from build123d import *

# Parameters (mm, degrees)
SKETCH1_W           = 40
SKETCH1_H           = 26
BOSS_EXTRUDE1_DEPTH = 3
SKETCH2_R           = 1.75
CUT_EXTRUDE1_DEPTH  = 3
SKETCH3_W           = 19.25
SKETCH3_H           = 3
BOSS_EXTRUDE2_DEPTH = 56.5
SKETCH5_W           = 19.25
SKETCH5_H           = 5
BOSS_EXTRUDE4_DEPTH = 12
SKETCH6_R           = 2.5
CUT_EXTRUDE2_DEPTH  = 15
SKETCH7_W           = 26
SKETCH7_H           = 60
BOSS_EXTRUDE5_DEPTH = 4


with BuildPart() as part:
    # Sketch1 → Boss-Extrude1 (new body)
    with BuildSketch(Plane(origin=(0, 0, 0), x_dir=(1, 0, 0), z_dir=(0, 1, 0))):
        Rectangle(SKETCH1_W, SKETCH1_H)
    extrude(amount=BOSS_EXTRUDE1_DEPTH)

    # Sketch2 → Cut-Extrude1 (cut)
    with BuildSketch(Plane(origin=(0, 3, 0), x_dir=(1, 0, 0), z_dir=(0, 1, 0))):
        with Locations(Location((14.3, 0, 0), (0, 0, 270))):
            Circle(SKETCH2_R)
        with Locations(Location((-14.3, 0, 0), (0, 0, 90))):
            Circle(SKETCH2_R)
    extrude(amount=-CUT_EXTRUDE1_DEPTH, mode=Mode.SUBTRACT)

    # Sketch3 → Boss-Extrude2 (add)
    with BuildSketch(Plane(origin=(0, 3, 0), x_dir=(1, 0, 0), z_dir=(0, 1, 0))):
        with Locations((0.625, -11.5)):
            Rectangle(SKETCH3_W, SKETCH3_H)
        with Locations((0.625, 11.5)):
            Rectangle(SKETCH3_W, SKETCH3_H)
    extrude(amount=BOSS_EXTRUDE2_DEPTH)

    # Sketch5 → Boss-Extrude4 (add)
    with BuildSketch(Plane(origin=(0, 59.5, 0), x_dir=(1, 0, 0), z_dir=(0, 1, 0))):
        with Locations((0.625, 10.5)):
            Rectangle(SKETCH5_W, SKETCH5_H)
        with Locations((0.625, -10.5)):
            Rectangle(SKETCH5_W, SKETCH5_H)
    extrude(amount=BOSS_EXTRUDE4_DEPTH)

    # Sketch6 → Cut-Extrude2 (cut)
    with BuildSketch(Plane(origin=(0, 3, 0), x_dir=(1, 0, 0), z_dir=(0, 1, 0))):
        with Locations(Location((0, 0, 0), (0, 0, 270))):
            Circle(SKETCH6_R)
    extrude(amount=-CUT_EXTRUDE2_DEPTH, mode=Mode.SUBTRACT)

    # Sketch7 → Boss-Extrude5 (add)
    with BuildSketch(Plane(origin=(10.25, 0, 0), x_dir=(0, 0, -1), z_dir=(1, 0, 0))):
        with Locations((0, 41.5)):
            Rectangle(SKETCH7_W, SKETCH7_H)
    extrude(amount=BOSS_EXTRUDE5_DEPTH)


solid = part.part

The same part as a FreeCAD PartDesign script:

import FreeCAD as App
import Part
import Sketcher

V = App.Vector
Q = App.Units.Quantity

doc = App.newDocument("Part")
body = doc.addObject("PartDesign::Body", "Body")

# Sketch on XZ plane
sketch1 = body.newObject("Sketcher::SketchObject", "Sketch")
sketch1.AttachmentSupport = (doc.getObject("XZ_Plane"), [""])
sketch1.MapMode = "FlatFace"
sketch1.addGeometry(Part.LineSegment(V(-20, -13, 0), V(-20, 13, 0)), False)
sketch1.addGeometry(Part.LineSegment(V(-20, 13, 0), V(20, 13, 0)), False)
sketch1.addGeometry(Part.LineSegment(V(20, 13, 0), V(20, -13, 0)), False)
sketch1.addGeometry(Part.LineSegment(V(20, -13, 0), V(-20, -13, 0)), False)
sketch1.addConstraint(Sketcher.Constraint("Coincident", 0, 2, 1, 1))
sketch1.addConstraint(Sketcher.Constraint("Coincident", 1, 2, 2, 1))
sketch1.addConstraint(Sketcher.Constraint("Coincident", 2, 2, 3, 1))
sketch1.addConstraint(Sketcher.Constraint("Coincident", 3, 2, 0, 1))
sketch1.addConstraint(Sketcher.Constraint("Vertical", 0))
sketch1.addConstraint(Sketcher.Constraint("Horizontal", 1))
sketch1.addConstraint(Sketcher.Constraint("Vertical", 2))
sketch1.addConstraint(Sketcher.Constraint("Horizontal", 3))
sketch1.addConstraint(Sketcher.Constraint("Symmetric", 0, 2, 2, 2, -1, 1))
sketch1.addConstraint(Sketcher.Constraint("DistanceX", 1, 1, 1, 2, Q("40 mm")))
sketch1.addConstraint(Sketcher.Constraint("DistanceY", 0, 1, 0, 2, Q("26 mm")))
pad1 = body.newObject("PartDesign::Pad", "Pad")
pad1.Profile = sketch1
pad1.Length = 3
pad1.Reversed = True

# Sketch on XZ plane
sketch2 = body.newObject("Sketcher::SketchObject", "Sketch001")
sketch2.AttachmentSupport = (doc.getObject("XZ_Plane"), [""])
sketch2.MapMode = "FlatFace"
sketch2.AttachmentOffset = App.Placement(V(0, 0, -3), App.Rotation())
sketch2.addGeometry(Part.Circle(V(14.3, 0, 0), V(0, 0, 1), 1.8), False)
sketch2.addGeometry(Part.Circle(V(-14.3, 0, 0), V(0, 0, 1), 1.8), False)
sketch2.addConstraint(Sketcher.Constraint("Equal", 0, 1))
sketch2.addConstraint(Sketcher.Constraint("Symmetric", 0, 3, 1, 3, -1, 1))
sketch2.addConstraint(Sketcher.Constraint("PointOnObject", 0, 3, -1))
sketch2.addConstraint(Sketcher.Constraint("Diameter", 0, Q("3.5 mm")))
sketch2.addConstraint(Sketcher.Constraint("DistanceX", -1, 1, 0, 3, Q("14.3 mm")))
pocket1 = body.newObject("PartDesign::Pocket", "Pocket")
pocket1.Profile = sketch2
pocket1.Length = 3
pocket1.Reversed = True

# Sketch on XZ plane
sketch3 = body.newObject("Sketcher::SketchObject", "Sketch002")
sketch3.AttachmentSupport = (doc.getObject("XZ_Plane"), [""])
sketch3.MapMode = "FlatFace"
sketch3.AttachmentOffset = App.Placement(V(0, 0, -3), App.Rotation())
sketch3.addGeometry(Part.LineSegment(V(-9, 10, 0), V(-9, 13, 0)), False)
sketch3.addGeometry(Part.LineSegment(V(-9, 13, 0), V(10.2, 13, 0)), False)
sketch3.addGeometry(Part.LineSegment(V(10.2, 13, 0), V(10.2, 10, 0)), False)
sketch3.addGeometry(Part.LineSegment(V(10.2, 10, 0), V(-9, 10, 0)), False)
sketch3.addGeometry(Part.LineSegment(V(-9, -13, 0), V(-9, -10, 0)), False)
sketch3.addGeometry(Part.LineSegment(V(-9, -10, 0), V(10.2, -10, 0)), False)
sketch3.addGeometry(Part.LineSegment(V(10.2, -10, 0), V(10.2, -13, 0)), False)
sketch3.addGeometry(Part.LineSegment(V(10.2, -13, 0), V(-9, -13, 0)), False)
sketch3.addConstraint(Sketcher.Constraint("Coincident", 0, 2, 1, 1))
sketch3.addConstraint(Sketcher.Constraint("Coincident", 1, 2, 2, 1))
sketch3.addConstraint(Sketcher.Constraint("Coincident", 2, 2, 3, 1))
sketch3.addConstraint(Sketcher.Constraint("Coincident", 3, 2, 0, 1))
sketch3.addConstraint(Sketcher.Constraint("Coincident", 4, 2, 5, 1))
sketch3.addConstraint(Sketcher.Constraint("Coincident", 5, 2, 6, 1))
sketch3.addConstraint(Sketcher.Constraint("Coincident", 6, 2, 7, 1))
sketch3.addConstraint(Sketcher.Constraint("Coincident", 7, 2, 4, 1))
sketch3.addConstraint(Sketcher.Constraint("Vertical", 0))
sketch3.addConstraint(Sketcher.Constraint("Horizontal", 1))
sketch3.addConstraint(Sketcher.Constraint("Vertical", 2))
sketch3.addConstraint(Sketcher.Constraint("Horizontal", 3))
sketch3.addConstraint(Sketcher.Constraint("Vertical", 4))
sketch3.addConstraint(Sketcher.Constraint("Horizontal", 5))
sketch3.addConstraint(Sketcher.Constraint("Vertical", 6))
sketch3.addConstraint(Sketcher.Constraint("Horizontal", 7))
sketch3.addConstraint(Sketcher.Constraint("Symmetric", 3, 2, 4, 2, -1))
sketch3.addConstraint(Sketcher.Constraint("Symmetric", 1, 2, 6, 2, -1))
sketch3.addConstraint(Sketcher.Constraint("DistanceY", 0, 1, 0, 2, Q("3 mm")))
sketch3.addConstraint(Sketcher.Constraint("DistanceX", 0, 2, -1, 1, Q("9 mm")))
sketch3.addConstraint(Sketcher.Constraint("DistanceY", -1, 1, 0, 2, Q("13 mm")))
sketch3.addConstraint(Sketcher.Constraint("DistanceX", 1, 1, 1, 2, Q("19.25 mm")))
pad2 = body.newObject("PartDesign::Pad", "Pad001")
pad2.Profile = sketch3
pad2.Length = 56.5
pad2.Reversed = True

# Sketch on XZ plane
sketch4 = body.newObject("Sketcher::SketchObject", "Sketch003")
sketch4.AttachmentSupport = (doc.getObject("XZ_Plane"), [""])
sketch4.MapMode = "FlatFace"
sketch4.AttachmentOffset = App.Placement(V(0, 0, -59.5), App.Rotation())
sketch4.addGeometry(Part.LineSegment(V(-9, -13, 0), V(-9, -8, 0)), False)
sketch4.addGeometry(Part.LineSegment(V(-9, -8, 0), V(10, -8, 0)), False)
sketch4.addGeometry(Part.LineSegment(V(10, -8, 0), V(10, -13, 0)), False)
sketch4.addGeometry(Part.LineSegment(V(10, -13, 0), V(-9, -13, 0)), False)
sketch4.addGeometry(Part.LineSegment(V(-9, 8, 0), V(-9, 13, 0)), False)
sketch4.addGeometry(Part.LineSegment(V(-9, 13, 0), V(10, 13, 0)), False)
sketch4.addGeometry(Part.LineSegment(V(10, 13, 0), V(10, 8, 0)), False)
sketch4.addGeometry(Part.LineSegment(V(10, 8, 0), V(-9, 8, 0)), False)
sketch4.addConstraint(Sketcher.Constraint("Coincident", 0, 2, 1, 1))
sketch4.addConstraint(Sketcher.Constraint("Coincident", 1, 2, 2, 1))
sketch4.addConstraint(Sketcher.Constraint("Coincident", 2, 2, 3, 1))
sketch4.addConstraint(Sketcher.Constraint("Coincident", 3, 2, 0, 1))
sketch4.addConstraint(Sketcher.Constraint("Coincident", 4, 2, 5, 1))
sketch4.addConstraint(Sketcher.Constraint("Coincident", 5, 2, 6, 1))
sketch4.addConstraint(Sketcher.Constraint("Coincident", 6, 2, 7, 1))
sketch4.addConstraint(Sketcher.Constraint("Coincident", 7, 2, 4, 1))
sketch4.addConstraint(Sketcher.Constraint("Vertical", 0))
sketch4.addConstraint(Sketcher.Constraint("Horizontal", 1))
sketch4.addConstraint(Sketcher.Constraint("Vertical", 2))
sketch4.addConstraint(Sketcher.Constraint("Horizontal", 3))
sketch4.addConstraint(Sketcher.Constraint("Vertical", 4))
sketch4.addConstraint(Sketcher.Constraint("Horizontal", 5))
sketch4.addConstraint(Sketcher.Constraint("Vertical", 6))
sketch4.addConstraint(Sketcher.Constraint("Horizontal", 7))
sketch4.addConstraint(Sketcher.Constraint("Symmetric", 3, 2, 4, 2, -1))
sketch4.addConstraint(Sketcher.Constraint("Symmetric", 1, 2, 6, 2, -1))
sketch4.addConstraint(Sketcher.Constraint("DistanceY", 0, 1, 0, 2, Q("5 mm")))
sketch4.addConstraint(Sketcher.Constraint("DistanceX", 0, 2, -1, 1, Q("9 mm")))
sketch4.addConstraint(Sketcher.Constraint("DistanceY", 0, 2, -1, 1, Q("8 mm")))
sketch4.addConstraint(Sketcher.Constraint("DistanceX", 1, 1, 1, 2, Q("19.25 mm")))
pad3 = body.newObject("PartDesign::Pad", "Pad002")
pad3.Profile = sketch4
pad3.Length = 12
pad3.Reversed = True

# Sketch on XZ plane
sketch5 = body.newObject("Sketcher::SketchObject", "Sketch004")
sketch5.AttachmentSupport = (doc.getObject("XZ_Plane"), [""])
sketch5.MapMode = "FlatFace"
sketch5.AttachmentOffset = App.Placement(V(0, 0, -3), App.Rotation())
sketch5.addGeometry(Part.Circle(V(0, 0, 0), V(0, 0, 1), 2.5), False)
sketch5.addConstraint(Sketcher.Constraint("Coincident", 0, 3, -1, 1))
sketch5.addConstraint(Sketcher.Constraint("Diameter", 0, Q("5 mm")))
pocket2 = body.newObject("PartDesign::Pocket", "Pocket001")
pocket2.Profile = sketch5
pocket2.Length = 15
pocket2.Reversed = True

# Sketch on YZ plane
sketch6 = body.newObject("Sketcher::SketchObject", "Sketch005")
sketch6.AttachmentSupport = (doc.getObject("YZ_Plane"), [""])
sketch6.MapMode = "FlatFace"
sketch6.AttachmentOffset = App.Placement(V(0, 0, 10.25), App.Rotation())
sketch6.addGeometry(Part.LineSegment(V(72, 13, 0), V(12, 13, 0)), False)
sketch6.addGeometry(Part.LineSegment(V(12, 13, 0), V(12, -13, 0)), False)
sketch6.addGeometry(Part.LineSegment(V(12, -13, 0), V(72, -13, 0)), False)
sketch6.addGeometry(Part.LineSegment(V(72, -13, 0), V(72, 13, 0)), False)
sketch6.addConstraint(Sketcher.Constraint("Coincident", 0, 2, 1, 1))
sketch6.addConstraint(Sketcher.Constraint("Coincident", 1, 2, 2, 1))
sketch6.addConstraint(Sketcher.Constraint("Coincident", 2, 2, 3, 1))
sketch6.addConstraint(Sketcher.Constraint("Coincident", 3, 2, 0, 1))
sketch6.addConstraint(Sketcher.Constraint("Horizontal", 0))
sketch6.addConstraint(Sketcher.Constraint("Vertical", 1))
sketch6.addConstraint(Sketcher.Constraint("Horizontal", 2))
sketch6.addConstraint(Sketcher.Constraint("Vertical", 3))
sketch6.addConstraint(Sketcher.Constraint("DistanceX", 0, 2, 0, 1, Q("60 mm")))
sketch6.addConstraint(Sketcher.Constraint("DistanceY", 1, 2, 1, 1, Q("26 mm")))
sketch6.addConstraint(Sketcher.Constraint("DistanceY", -1, 1, 0, 2, Q("13 mm")))
sketch6.addConstraint(Sketcher.Constraint("DistanceX", -1, 1, 0, 2, Q("11.5 mm")))
pad4 = body.newObject("PartDesign::Pad", "Pad003")
pad4.Profile = sketch6
pad4.Length = 4

doc.recompute()
